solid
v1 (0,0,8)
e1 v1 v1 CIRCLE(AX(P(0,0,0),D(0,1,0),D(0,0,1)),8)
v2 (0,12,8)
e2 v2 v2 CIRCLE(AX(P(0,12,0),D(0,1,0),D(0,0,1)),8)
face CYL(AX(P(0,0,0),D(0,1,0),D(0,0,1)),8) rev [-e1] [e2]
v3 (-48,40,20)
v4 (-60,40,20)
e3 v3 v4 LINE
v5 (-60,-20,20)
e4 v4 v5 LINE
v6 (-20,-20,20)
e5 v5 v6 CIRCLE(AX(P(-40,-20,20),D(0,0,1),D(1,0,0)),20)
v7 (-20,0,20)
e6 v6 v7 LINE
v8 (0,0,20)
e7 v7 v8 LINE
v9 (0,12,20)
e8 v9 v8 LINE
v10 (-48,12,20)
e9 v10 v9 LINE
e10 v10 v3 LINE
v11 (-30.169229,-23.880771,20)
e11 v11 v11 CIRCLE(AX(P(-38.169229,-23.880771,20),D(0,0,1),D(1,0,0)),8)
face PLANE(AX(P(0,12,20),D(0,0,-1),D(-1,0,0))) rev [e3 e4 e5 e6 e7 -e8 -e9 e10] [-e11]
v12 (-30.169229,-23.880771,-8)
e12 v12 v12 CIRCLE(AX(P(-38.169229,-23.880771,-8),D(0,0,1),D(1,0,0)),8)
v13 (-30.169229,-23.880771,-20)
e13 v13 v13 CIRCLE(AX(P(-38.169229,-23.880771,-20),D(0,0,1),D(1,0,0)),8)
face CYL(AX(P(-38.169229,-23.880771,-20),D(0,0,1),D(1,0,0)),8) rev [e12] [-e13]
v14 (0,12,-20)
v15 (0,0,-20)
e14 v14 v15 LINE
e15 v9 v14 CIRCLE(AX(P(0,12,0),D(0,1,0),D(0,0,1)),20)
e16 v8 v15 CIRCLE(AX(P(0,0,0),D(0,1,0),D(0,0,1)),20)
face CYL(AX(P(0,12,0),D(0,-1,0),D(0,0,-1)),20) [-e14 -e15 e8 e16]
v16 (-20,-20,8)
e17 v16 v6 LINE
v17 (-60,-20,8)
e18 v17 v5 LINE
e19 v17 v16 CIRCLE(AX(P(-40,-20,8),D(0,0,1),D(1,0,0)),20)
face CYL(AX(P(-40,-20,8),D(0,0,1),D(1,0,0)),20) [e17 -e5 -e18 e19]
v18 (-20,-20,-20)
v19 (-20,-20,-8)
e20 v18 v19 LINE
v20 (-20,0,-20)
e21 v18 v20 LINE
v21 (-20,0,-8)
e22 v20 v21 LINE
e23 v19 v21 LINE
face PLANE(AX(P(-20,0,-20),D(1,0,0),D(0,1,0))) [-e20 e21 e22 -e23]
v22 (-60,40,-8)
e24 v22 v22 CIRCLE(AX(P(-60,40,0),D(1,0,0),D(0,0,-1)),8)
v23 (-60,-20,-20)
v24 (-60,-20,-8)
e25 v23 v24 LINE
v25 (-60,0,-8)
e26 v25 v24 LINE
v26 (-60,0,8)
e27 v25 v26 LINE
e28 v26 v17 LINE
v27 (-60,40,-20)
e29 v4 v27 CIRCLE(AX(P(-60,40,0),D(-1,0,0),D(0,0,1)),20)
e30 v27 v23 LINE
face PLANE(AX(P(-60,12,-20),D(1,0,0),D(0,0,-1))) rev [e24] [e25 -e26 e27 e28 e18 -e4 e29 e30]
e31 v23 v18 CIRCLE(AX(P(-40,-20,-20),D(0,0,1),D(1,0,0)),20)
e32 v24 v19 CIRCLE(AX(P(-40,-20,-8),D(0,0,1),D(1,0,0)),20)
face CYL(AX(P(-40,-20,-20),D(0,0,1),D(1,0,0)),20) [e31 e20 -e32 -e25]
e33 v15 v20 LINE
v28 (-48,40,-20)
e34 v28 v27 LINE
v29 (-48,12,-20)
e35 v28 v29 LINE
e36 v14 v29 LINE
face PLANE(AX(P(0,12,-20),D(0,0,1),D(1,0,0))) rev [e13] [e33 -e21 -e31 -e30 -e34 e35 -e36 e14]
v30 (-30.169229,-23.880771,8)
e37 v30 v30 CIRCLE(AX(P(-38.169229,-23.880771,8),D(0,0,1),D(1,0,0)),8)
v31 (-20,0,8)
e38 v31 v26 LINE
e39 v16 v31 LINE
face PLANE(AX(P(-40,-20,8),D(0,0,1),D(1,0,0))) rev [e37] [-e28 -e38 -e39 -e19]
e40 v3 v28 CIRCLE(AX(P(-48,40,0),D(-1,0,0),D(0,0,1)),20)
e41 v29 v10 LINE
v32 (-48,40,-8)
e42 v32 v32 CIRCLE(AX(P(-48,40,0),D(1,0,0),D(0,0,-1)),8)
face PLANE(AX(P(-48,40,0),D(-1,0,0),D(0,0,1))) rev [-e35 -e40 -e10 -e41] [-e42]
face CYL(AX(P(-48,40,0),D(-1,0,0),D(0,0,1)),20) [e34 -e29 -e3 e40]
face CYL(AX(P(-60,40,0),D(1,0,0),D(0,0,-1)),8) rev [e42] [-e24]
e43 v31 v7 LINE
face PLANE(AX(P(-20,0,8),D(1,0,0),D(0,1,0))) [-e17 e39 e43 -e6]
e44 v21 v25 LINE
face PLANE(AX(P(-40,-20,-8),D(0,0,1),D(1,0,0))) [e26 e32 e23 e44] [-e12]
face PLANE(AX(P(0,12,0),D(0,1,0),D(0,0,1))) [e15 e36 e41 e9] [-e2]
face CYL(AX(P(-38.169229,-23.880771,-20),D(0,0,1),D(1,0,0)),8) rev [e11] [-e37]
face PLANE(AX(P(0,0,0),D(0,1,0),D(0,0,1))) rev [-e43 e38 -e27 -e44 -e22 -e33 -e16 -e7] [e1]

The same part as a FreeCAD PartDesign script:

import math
import FreeCAD as App
import Part
import Sketcher
Q = App.Units.Quantity

doc = App.newDocument("Part")
params = doc.addObject("Spreadsheet::Sheet", "Params")
for row, (alias, value) in enumerate([
    ("sketch1_radius", "20 mm"),
    ("sketch1_width", "60 mm"),
    ("pad1_length", "12 mm"),
    ("sketch2_diameter", "16 mm"),
    ("sketch3_radius", "20 mm"),
    ("sketch3_width", "28 mm"),
    ("pad2_length", "12 mm"),
    ("sketch4_diameter", "16 mm"),
    ("sketch5_radius", "20 mm"),
    ("sketch5_height", "20 mm"),
    ("pad3_length", "12 mm"),
    ("sketch6_radius", "20 mm"),
    ("sketch6_height", "20 mm"),
    ("pad4_length", "12 mm"),
    ("sketch7_diameter", "16 mm"),
], start=1):
    params.set(f"A{row}", alias)
    params.set(f"B{row}", "=" + value)
    params.setAlias(f"B{row}", alias)

body = doc.addObject("PartDesign::Body", "Body")

# Sketch on XZ plane
sketch1 = doc.addObject("Sketcher::SketchObject", "Sketch")
body.addObject(sketch1)
sketch1.AttachmentSupport = (doc.XZ_Plane, [""])
sketch1.MapMode = "FlatFace"
sketch1.addGeometry(Part.LineSegment(App.Vector(0, -20, 0), App.Vector(-60, -20, 0)), False)
sketch1.addGeometry(Part.LineSegment(App.Vector(-60, -20, 0), App.Vector(-60, 20, 0)), False)
sketch1.addGeometry(Part.LineSegment(App.Vector(-60, 20, 0), App.Vector(0, 20, 0)), False)
sketch1.addGeometry(Part.ArcOfCircle(Part.Circle(App.Vector(0, 0, 0), App.Vector(0, 0, 1), 20), math.radians(-90), math.radians(90)), False)
sketch1.addConstraint(Sketcher.Constraint("Coincident", 0, 2, 1, 1))
sketch1.addConstraint(Sketcher.Constraint("Coincident", 1, 2, 2, 1))
sketch1.addConstraint(Sketcher.Constraint("Tangent", 2, 2, 3, 2))
sketch1.addConstraint(Sketcher.Constraint("Tangent", 3, 1, 0, 1))
sketch1.addConstraint(Sketcher.Constraint("Horizontal", 0))
sketch1.addConstraint(Sketcher.Constraint("Vertical", 1))
sketch1.addConstraint(Sketcher.Constraint("Horizontal", 2))
sketch1.addConstraint(Sketcher.Constraint("Coincident", 3, 3, -1, 1))
sketch1.addConstraint(Sketcher.Constraint("Radius", 3, Q("20 mm")))
sketch1.addConstraint(Sketcher.Constraint("DistanceX", 0, 2, 0, 1, Q("60 mm")))
sketch1.setExpression("Constraints[8]", "Params.sketch1_radius")
sketch1.setExpression("Constraints[9]", "Params.sketch1_width")
pad1 = doc.addObject("PartDesign::Pad", "Pad")
body.addObject(pad1)
pad1.Profile = sketch1
pad1.setExpression("Length", "Params.pad1_length")
pad1.Reversed = True

# Sketch on XZ plane
sketch2 = doc.addObject("Sketcher::SketchObject", "Sketch001")
body.addObject(sketch2)
sketch2.AttachmentSupport = (doc.XZ_Plane, [""])
sketch2.MapMode = "FlatFace"
sketch2.AttachmentOffset = App.Placement(App.Vector(0, 0, -12), App.Rotation())
sketch2.addGeometry(Part.Circle(App.Vector(0, 0, 0), App.Vector(0, 0, 1), 8), False)
sketch2.addConstraint(Sketcher.Constraint("Coincident", 0, 3, -1, 1))
sketch2.addConstraint(Sketcher.Constraint("Diameter", 0, Q("16 mm")))
sketch2.setExpression("Constraints[1]", "Params.sketch2_diameter")
pocket1 = doc.addObject("PartDesign::Pocket", "Pocket")
body.addObject(pocket1)
pocket1.Profile = sketch2
pocket1.Type = "ThroughAll"
pocket1.Reversed = True

# Sketch on YZ plane
sketch3 = doc.addObject("Sketcher::SketchObject", "Sketch002")
body.addObject(sketch3)
sketch3.AttachmentSupport = (doc.YZ_Plane, [""])
sketch3.MapMode = "FlatFace"
sketch3.AttachmentOffset = App.Placement(App.Vector(0, 0, -60), App.Rotation())
sketch3.addGeometry(Part.LineSegment(App.Vector(12, -20, 0), App.Vector(12, 20, 0)), False)
sketch3.addGeometry(Part.LineSegment(App.Vector(12, 20, 0), App.Vector(40, 20, 0)), False)
sketch3.addGeometry(Part.ArcOfCircle(Part.Circle(App.Vector(40, 0, 0), App.Vector(0, 0, 1), 20), math.radians(-90), math.radians(90)), False)
sketch3.addGeometry(Part.LineSegment(App.Vector(40, -20, 0), App.Vector(12, -20, 0)), False)
sketch3.addConstraint(Sketcher.Constraint("Coincident", 0, 2, 1, 1))
sketch3.addConstraint(Sketcher.Constraint("Tangent", 1, 2, 2, 2))
sketch3.addConstraint(Sketcher.Constraint("Tangent", 2, 1, 3, 1))
sketch3.addConstraint(Sketcher.Constraint("Coincident", 3, 2, 0, 1))
sketch3.addConstraint(Sketcher.Constraint("Vertical", 0))
sketch3.addConstraint(Sketcher.Constraint("Horizontal", 1))
sketch3.addConstraint(Sketcher.Constraint("Horizontal", 3))
sketch3.addConstraint(Sketcher.Constraint("PointOnObject", 2, 3, -1))
sketch3.addConstraint(Sketcher.Constraint("Radius", 2, Q("20 mm")))
sketch3.addConstraint(Sketcher.Constraint("DistanceX", 1, 1, 1, 2, Q("28 mm")))
sketch3.addConstraint(Sketcher.Constraint("DistanceX", -1, 1, 2, 3, Q("40 mm")))
sketch3.setExpression("Constraints[8]", "Params.sketch3_radius")
sketch3.setExpression("Constraints[9]", "Params.sketch3_width")
pad2 = doc.addObject("PartDesign::Pad", "Pad001")
body.addObject(pad2)
pad2.Profile = sketch3
pad2.setExpression("Length", "Params.pad2_length")

# Sketch on YZ plane
sketch4 = doc.addObject("Sketcher::SketchObject", "Sketch003")
body.addObject(sketch4)
sketch4.AttachmentSupport = (doc.YZ_Plane, [""])
sketch4.MapMode = "FlatFace"
sketch4.AttachmentOffset = App.Placement(App.Vector(0, 0, -48), App.Rotation())
sketch4.addGeometry(Part.Circle(App.Vector(40, 0, 0), App.Vector(0, 0, 1), 8), False)
sketch4.addConstraint(Sketcher.Constraint("PointOnObject", 0, 3, -1))
sketch4.addConstraint(Sketcher.Constraint("Diameter", 0, Q("16 mm")))
sketch4.addConstraint(Sketcher.Constraint("DistanceX", -1, 1, 0, 3, Q("40 mm")))
sketch4.setExpression("Constraints[1]", "Params.sketch4_diameter")
pocket2 = doc.addObject("PartDesign::Pocket", "Pocket001")
body.addObject(pocket2)
pocket2.Profile = sketch4
pocket2.Type = "ThroughAll"

# Sketch on XY plane
sketch5 = doc.addObject("Sketcher::SketchObject", "Sketch004")
body.addObject(sketch5)
sketch5.AttachmentSupport = (doc.XY_Plane, [""])
sketch5.MapMode = "FlatFace"
sketch5.AttachmentOffset = App.Placement(App.Vector(0, 0, 20), App.Rotation())
sketch5.addGeometry(Part.LineSegment(App.Vector(-20, 0, 0), App.Vector(-60, 0, 0)), False)
sketch5.addGeometry(Part.LineSegment(App.Vector(-60, 0, 0), App.Vector(-60, -20, 0)), False)
sketch5.addGeometry(Part.ArcOfCircle(Part.Circle(App.Vector(-40, -20, 0), App.Vector(0, 0, 1), 20), math.radians(180), math.radians(360)), False)
sketch5.addGeometry(Part.LineSegment(App.Vector(-20, -20, 0), App.Vector(-20, 0, 0)), False)
sketch5.addConstraint(Sketcher.Constraint("Coincident", 0, 2, 1, 1))
sketch5.addConstraint(Sketcher.Constraint("Tangent", 1, 2, 2, 1))
sketch5.addConstraint(Sketcher.Constraint("Tangent", 2, 2, 3, 1))
sketch5.addConstraint(Sketcher.Constraint("Coincident", 3, 2, 0, 1))
sketch5.addConstraint(Sketcher.Constraint("Horizontal", 0))
sketch5.addConstraint(Sketcher.Constraint("Vertical", 1))
sketch5.addConstraint(Sketcher.Constraint("Vertical", 3))
sketch5.addConstraint(Sketcher.Constraint("PointOnObject", 0, 2, -1))
sketch5.addConstraint(Sketcher.Constraint("Radius", 2, Q("20 mm")))
sketch5.addConstraint(Sketcher.Constraint("DistanceY", 1, 2, 1, 1, Q("20 mm")))
sketch5.addConstraint(Sketcher.Constraint("DistanceX", 2, 3, -1, 1, Q("40 mm")))
sketch5.setExpression("Constraints[8]", "Params.sketch5_radius")
sketch5.setExpression("Constraints[9]", "Params.sketch5_height")
pad3 = doc.addObject("PartDesign::Pad", "Pad002")
body.addObject(pad3)
pad3.Profile = sketch5
pad3.setExpression("Length", "Params.pad3_length")
pad3.Reversed = True

# Sketch on XY plane
sketch6 = doc.addObject("Sketcher::SketchObject", "Sketch005")
body.addObject(sketch6)
sketch6.AttachmentSupport = (doc.XY_Plane, [""])
sketch6.MapMode = "FlatFace"
sketch6.AttachmentOffset = App.Placement(App.Vector(0, 0, -8), App.Rotation())
sketch6.addGeometry(Part.LineSegment(App.Vector(-20, 0, 0), App.Vector(-60, 0, 0)), False)
sketch6.addGeometry(Part.LineSegment(App.Vector(-60, 0, 0), App.Vector(-60, -20, 0)), False)
sketch6.addGeometry(Part.ArcOfCircle(Part.Circle(App.Vector(-40, -20, 0), App.Vector(0, 0, 1), 20), math.radians(180), math.radians(360)), False)
sketch6.addGeometry(Part.LineSegment(App.Vector(-20, -20, 0), App.Vector(-20, 0, 0)), False)
sketch6.addConstraint(Sketcher.Constraint("Coincident", 0, 2, 1, 1))
sketch6.addConstraint(Sketcher.Constraint("Tangent", 1, 2, 2, 1))
sketch6.addConstraint(Sketcher.Constraint("Tangent", 2, 2, 3, 1))
sketch6.addConstraint(Sketcher.Constraint("Coincident", 3, 2, 0, 1))
sketch6.addConstraint(Sketcher.Constraint("Horizontal", 0))
sketch6.addConstraint(Sketcher.Constraint("Vertical", 1))
sketch6.addConstraint(Sketcher.Constraint("Vertical", 3))
sketch6.addConstraint(Sketcher.Constraint("PointOnObject", 0, 2, -1))
sketch6.addConstraint(Sketcher.Constraint("Radius", 2, Q("20 mm")))
sketch6.addConstraint(Sketcher.Constraint("DistanceY", 1, 2, 1, 1, Q("20 mm")))
sketch6.addConstraint(Sketcher.Constraint("DistanceX", 2, 3, -1, 1, Q("40 mm")))
sketch6.setExpression("Constraints[8]", "Params.sketch6_radius")
sketch6.setExpression("Constraints[9]", "Params.sketch6_height")
pad4 = doc.addObject("PartDesign::Pad", "Pad003")
body.addObject(pad4)
pad4.Profile = sketch6
pad4.setExpression("Length", "Params.pad4_length")
pad4.Reversed = True

# Sketch on XY plane
sketch7 = doc.addObject("Sketcher::SketchObject", "Sketch006")
body.addObject(sketch7)
sketch7.AttachmentSupport = (doc.XY_Plane, [""])
sketch7.MapMode = "FlatFace"
sketch7.AttachmentOffset = App.Placement(App.Vector(0, 0, 20), App.Rotation())
sketch7.addGeometry(Part.Circle(App.Vector(-38, -24, 0), App.Vector(0, 0, 1), 8), False)
sketch7.addConstraint(Sketcher.Constraint("Diameter", 0, Q("16 mm")))
sketch7.addConstraint(Sketcher.Constraint("DistanceX", 0, 3, -1, 1, Q("38.169229 mm")))
sketch7.addConstraint(Sketcher.Constraint("DistanceY", 0, 3, -1, 1, Q("23.880771 mm")))
sketch7.setExpression("Constraints[0]", "Params.sketch7_diameter")
pocket3 = doc.addObject("PartDesign::Pocket", "Pocket002")
body.addObject(pocket3)
pocket3.Profile = sketch7
pocket3.Type = "ThroughAll"

doc.recompute()
